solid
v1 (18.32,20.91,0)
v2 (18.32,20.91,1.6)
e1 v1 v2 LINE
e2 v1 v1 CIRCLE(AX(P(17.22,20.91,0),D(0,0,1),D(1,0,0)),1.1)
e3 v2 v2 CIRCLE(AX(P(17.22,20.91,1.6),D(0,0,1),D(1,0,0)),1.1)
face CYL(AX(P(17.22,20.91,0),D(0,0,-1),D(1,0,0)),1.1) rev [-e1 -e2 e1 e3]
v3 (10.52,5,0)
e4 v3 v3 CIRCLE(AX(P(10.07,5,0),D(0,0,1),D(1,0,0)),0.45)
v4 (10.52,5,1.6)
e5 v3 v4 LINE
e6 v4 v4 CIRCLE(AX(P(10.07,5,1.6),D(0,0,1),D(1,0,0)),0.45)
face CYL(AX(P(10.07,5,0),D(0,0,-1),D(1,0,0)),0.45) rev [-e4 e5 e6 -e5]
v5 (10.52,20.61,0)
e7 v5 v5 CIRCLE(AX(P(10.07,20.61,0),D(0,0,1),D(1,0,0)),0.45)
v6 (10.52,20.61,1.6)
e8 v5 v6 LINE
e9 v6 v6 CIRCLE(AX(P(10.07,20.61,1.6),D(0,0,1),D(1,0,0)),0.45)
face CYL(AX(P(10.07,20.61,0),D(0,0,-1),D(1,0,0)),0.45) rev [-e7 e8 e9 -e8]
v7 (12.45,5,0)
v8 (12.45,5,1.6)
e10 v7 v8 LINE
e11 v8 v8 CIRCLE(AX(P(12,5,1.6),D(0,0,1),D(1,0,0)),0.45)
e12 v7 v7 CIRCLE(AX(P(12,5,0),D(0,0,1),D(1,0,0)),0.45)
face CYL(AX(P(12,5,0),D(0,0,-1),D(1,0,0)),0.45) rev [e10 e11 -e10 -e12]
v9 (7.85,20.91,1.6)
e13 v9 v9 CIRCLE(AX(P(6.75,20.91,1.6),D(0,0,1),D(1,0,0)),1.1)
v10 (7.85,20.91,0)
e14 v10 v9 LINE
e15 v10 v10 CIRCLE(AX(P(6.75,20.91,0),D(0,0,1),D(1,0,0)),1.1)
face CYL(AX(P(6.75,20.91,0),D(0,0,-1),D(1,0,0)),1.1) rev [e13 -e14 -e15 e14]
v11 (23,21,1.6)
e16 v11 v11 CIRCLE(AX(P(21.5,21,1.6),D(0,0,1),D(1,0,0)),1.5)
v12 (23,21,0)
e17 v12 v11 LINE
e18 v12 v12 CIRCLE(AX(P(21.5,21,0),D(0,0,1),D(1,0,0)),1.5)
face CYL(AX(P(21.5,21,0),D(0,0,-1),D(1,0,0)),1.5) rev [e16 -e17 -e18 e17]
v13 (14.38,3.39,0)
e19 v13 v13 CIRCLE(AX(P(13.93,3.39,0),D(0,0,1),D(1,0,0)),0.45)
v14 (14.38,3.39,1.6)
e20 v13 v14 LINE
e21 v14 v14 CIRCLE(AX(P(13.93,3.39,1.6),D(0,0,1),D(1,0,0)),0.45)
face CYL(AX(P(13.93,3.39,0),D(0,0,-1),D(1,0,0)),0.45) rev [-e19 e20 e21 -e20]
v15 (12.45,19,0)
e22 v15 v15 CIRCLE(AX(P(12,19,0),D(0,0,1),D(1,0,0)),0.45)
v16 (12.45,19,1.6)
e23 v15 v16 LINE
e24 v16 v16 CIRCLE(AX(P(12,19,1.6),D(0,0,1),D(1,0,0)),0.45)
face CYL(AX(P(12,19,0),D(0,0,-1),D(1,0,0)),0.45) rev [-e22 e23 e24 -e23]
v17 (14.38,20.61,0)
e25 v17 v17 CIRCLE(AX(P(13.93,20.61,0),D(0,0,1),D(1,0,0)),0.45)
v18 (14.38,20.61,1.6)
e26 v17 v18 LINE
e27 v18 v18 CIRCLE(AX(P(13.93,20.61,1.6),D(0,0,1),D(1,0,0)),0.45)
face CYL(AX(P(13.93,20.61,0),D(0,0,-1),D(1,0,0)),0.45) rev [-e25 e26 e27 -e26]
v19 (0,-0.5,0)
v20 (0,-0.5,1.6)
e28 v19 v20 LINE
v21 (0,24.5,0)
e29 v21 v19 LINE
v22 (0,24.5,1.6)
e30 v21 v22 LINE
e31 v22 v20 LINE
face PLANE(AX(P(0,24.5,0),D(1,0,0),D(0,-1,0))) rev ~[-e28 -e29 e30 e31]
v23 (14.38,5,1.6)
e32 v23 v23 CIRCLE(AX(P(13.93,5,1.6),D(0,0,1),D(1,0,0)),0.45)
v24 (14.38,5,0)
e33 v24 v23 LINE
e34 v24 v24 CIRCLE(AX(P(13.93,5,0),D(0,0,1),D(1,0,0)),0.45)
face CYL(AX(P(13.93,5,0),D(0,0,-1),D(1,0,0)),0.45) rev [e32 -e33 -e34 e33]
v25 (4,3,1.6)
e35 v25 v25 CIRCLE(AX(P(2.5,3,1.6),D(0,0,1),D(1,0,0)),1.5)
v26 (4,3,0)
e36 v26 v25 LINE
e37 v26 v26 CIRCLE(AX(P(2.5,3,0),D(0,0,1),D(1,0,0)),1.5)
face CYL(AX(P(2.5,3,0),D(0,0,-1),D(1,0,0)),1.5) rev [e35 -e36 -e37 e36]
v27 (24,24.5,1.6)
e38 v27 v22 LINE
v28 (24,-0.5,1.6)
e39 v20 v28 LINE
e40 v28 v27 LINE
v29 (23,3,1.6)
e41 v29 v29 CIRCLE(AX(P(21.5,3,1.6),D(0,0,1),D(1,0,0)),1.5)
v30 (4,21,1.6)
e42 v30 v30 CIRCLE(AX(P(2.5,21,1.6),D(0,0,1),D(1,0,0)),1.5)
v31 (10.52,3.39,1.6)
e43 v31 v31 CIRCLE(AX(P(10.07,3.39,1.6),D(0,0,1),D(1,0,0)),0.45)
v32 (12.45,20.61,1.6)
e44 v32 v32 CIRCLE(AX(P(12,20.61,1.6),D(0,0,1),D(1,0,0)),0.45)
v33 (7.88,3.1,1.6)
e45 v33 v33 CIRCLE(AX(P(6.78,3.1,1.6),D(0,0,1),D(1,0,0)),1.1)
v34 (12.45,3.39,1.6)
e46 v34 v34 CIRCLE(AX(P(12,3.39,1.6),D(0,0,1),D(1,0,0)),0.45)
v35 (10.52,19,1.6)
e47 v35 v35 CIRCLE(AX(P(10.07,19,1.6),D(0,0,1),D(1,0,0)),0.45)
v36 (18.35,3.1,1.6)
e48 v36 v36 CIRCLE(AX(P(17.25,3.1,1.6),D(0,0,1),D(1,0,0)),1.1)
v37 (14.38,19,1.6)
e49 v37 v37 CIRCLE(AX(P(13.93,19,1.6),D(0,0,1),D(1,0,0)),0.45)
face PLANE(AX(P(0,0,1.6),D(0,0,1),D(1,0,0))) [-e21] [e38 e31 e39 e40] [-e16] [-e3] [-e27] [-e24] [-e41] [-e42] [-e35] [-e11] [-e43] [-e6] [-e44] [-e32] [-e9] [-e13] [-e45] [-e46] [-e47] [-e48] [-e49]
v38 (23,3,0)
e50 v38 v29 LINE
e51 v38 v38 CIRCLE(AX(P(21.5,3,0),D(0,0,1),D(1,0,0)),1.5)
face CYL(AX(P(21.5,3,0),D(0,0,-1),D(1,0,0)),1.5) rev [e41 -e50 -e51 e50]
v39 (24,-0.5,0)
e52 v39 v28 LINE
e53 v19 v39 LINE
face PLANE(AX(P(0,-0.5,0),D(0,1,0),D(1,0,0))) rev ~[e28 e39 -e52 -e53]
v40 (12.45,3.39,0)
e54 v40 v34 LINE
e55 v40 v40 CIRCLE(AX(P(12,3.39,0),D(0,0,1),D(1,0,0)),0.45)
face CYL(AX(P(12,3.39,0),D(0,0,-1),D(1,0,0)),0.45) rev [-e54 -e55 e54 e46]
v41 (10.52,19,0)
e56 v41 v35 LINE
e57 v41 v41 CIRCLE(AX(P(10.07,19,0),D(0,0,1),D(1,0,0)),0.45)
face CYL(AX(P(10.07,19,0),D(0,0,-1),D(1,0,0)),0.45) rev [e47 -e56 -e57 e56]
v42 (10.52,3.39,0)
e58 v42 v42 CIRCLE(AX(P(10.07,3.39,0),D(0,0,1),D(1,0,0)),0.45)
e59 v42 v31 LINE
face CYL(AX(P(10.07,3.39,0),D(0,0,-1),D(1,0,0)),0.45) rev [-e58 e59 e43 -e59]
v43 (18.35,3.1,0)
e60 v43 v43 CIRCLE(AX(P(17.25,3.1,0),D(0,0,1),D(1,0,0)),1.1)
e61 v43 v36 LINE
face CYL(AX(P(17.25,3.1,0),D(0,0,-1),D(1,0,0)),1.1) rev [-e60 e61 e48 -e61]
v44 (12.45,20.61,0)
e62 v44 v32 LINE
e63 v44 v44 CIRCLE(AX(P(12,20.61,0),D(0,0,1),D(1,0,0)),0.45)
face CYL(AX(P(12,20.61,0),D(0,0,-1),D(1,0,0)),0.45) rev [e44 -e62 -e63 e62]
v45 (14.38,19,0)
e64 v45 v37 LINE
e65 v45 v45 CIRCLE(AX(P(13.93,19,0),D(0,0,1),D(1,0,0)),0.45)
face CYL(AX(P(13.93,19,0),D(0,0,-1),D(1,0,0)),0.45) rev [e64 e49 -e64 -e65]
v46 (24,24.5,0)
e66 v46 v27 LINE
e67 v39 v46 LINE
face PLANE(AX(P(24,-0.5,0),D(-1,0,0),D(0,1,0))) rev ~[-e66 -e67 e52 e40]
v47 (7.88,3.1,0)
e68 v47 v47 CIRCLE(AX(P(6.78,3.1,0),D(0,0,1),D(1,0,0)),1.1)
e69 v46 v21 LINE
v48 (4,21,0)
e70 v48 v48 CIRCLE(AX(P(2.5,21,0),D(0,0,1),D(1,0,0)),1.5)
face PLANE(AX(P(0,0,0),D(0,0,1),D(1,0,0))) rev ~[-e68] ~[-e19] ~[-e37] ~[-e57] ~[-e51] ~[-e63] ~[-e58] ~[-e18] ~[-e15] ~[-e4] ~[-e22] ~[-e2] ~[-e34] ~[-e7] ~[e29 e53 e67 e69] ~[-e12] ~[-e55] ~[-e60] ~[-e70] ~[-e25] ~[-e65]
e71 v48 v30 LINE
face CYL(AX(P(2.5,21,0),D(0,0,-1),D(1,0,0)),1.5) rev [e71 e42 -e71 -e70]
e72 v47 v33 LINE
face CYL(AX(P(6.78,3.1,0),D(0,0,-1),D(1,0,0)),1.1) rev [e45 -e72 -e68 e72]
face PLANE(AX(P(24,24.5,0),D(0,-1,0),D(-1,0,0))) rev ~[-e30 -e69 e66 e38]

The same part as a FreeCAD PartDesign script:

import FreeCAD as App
import Part
import Sketcher

V = App.Vector


def add_polygon(sketch, points):
    """Adds a closed chain of lines whose ends are joined by coincident constraints."""
    first, n = sketch.GeometryCount, len(points)
    for a, b in zip(points, points[1:] + points[:1]):
        sketch.addGeometry(Part.LineSegment(App.Vector(*a, 0), App.Vector(*b, 0)), False)
    for i in range(n):
        sketch.addConstraint(Sketcher.Constraint("Coincident", first + i, 2, first + (i + 1) % n, 1))

doc = App.newDocument("Part")
body = doc.addObject("PartDesign::Body", "Body")

sketch1 = body.newObject("Sketcher::SketchObject", "Sketch")
sketch1.AttachmentSupport = (doc.getObject("XY_Plane"), [""])
sketch1.MapMode = "FlatFace"
add_polygon(sketch1, [(0, 24.5), (0, -0.5), (24, -0.5), (24, 24.5)])
sketch1.addGeometry(Part.Circle(V(2.5, 3, 0), V(0, 0, 1), 1.5), False)
sketch1.addGeometry(Part.Circle(V(6.78, 3.1, 0), V(0, 0, 1), 1.1), False)
sketch1.addGeometry(Part.Circle(V(10.07, 3.39, 0), V(0, 0, 1), 0.45), False)
sketch1.addGeometry(Part.Circle(V(10.07, 5, 0), V(0, 0, 1), 0.45), False)
sketch1.addGeometry(Part.Circle(V(12, 3.39, 0), V(0, 0, 1), 0.45), False)
sketch1.addGeometry(Part.Circle(V(13.93, 3.39, 0), V(0, 0, 1), 0.45), False)
sketch1.addGeometry(Part.Circle(V(12, 5, 0), V(0, 0, 1), 0.45), False)
sketch1.addGeometry(Part.Circle(V(13.93, 5, 0), V(0, 0, 1), 0.45), False)
sketch1.addGeometry(Part.Circle(V(17.25, 3.1, 0), V(0, 0, 1), 1.1), False)
sketch1.addGeometry(Part.Circle(V(21.5, 3, 0), V(0, 0, 1), 1.5), False)
sketch1.addGeometry(Part.Circle(V(2.5, 21, 0), V(0, 0, 1), 1.5), False)
sketch1.addGeometry(Part.Circle(V(6.75, 20.91, 0), V(0, 0, 1), 1.1), False)
sketch1.addGeometry(Part.Circle(V(10.07, 19, 0), V(0, 0, 1), 0.45), False)
sketch1.addGeometry(Part.Circle(V(10.07, 20.61, 0), V(0, 0, 1), 0.45), False)
sketch1.addGeometry(Part.Circle(V(12, 19, 0), V(0, 0, 1), 0.45), False)
sketch1.addGeometry(Part.Circle(V(13.93, 19, 0), V(0, 0, 1), 0.45), False)
sketch1.addGeometry(Part.Circle(V(12, 20.61, 0), V(0, 0, 1), 0.45), False)
sketch1.addGeometry(Part.Circle(V(13.93, 20.61, 0), V(0, 0, 1), 0.45), False)
sketch1.addGeometry(Part.Circle(V(17.22, 20.91, 0), V(0, 0, 1), 1.1), False)
sketch1.addGeometry(Part.Circle(V(21.5, 21, 0), V(0, 0, 1), 1.5), False)
sketch1.addConstraint([
    Sketcher.Constraint("Vertical", 0),
    Sketcher.Constraint("Horizontal", 1),
    Sketcher.Constraint("Vertical", 2),
    Sketcher.Constraint("Horizontal", 3),
    Sketcher.Constraint("Equal", 6, 7),
    Sketcher.Constraint("Equal", 7, 8),
    Sketcher.Constraint("Equal", 8, 9),
    Sketcher.Constraint("Equal", 9, 10),
    Sketcher.Constraint("Equal", 10, 11),
    Sketcher.Constraint("Equal", 5, 12),
    Sketcher.Constraint("Equal", 4, 13),
    Sketcher.Constraint("Equal", 13, 14),
    Sketcher.Constraint("Equal", 12, 15),
    Sketcher.Constraint("Equal", 11, 16),
    Sketcher.Constraint("Equal", 16, 17),
    Sketcher.Constraint("Equal", 17, 18),
    Sketcher.Constraint("Equal", 18, 19),
    Sketcher.Constraint("Equal", 19, 20),
    Sketcher.Constraint("Equal", 20, 21),
    Sketcher.Constraint("Equal", 15, 22),
    Sketcher.Constraint("Equal", 14, 23),
    Sketcher.Constraint("PointOnObject", 0, 2, -2),
    Sketcher.Constraint("Horizontal", 6, 3, 8, 3),
    Sketcher.Constraint("Horizontal", 8, 3, 9, 3),
    Sketcher.Constraint("Horizontal", 7, 3, 10, 3),
    Sketcher.Constraint("Horizontal", 10, 3, 11, 3),
    Sketcher.Constraint("Horizontal", 5, 3, 12, 3),
    Sketcher.Constraint("Horizontal", 4, 3, 13, 3),
    Sketcher.Constraint("Horizontal", 16, 3, 18, 3),
    Sketcher.Constraint("Horizontal", 18, 3, 19, 3),
    Sketcher.Constraint("Horizontal", 17, 3, 20, 3),
    Sketcher.Constraint("Horizontal", 20, 3, 21, 3),
    Sketcher.Constraint("Horizontal", 15, 3, 22, 3),
    Sketcher.Constraint("Horizontal", 14, 3, 23, 3),
    Sketcher.Constraint("Vertical", 6, 3, 7, 3),
    Sketcher.Constraint("Vertical", 8, 3, 10, 3),
    Sketcher.Constraint("Vertical", 9, 3, 11, 3),
    Sketcher.Constraint("Vertical", 4, 3, 14, 3),
    Sketcher.Constraint("Vertical", 7, 3, 16, 3),
    Sketcher.Constraint("Vertical", 16, 3, 17, 3),
    Sketcher.Constraint("Vertical", 10, 3, 18, 3),
    Sketcher.Constraint("Vertical", 11, 3, 19, 3),
    Sketcher.Constraint("Vertical", 18, 3, 20, 3),
    Sketcher.Constraint("Vertical", 19, 3, 21, 3),
    Sketcher.Constraint("Vertical", 13, 3, 23, 3),
    Sketcher.Constraint("Diameter", 4, 3.0),
    Sketcher.Constraint("Diameter", 5, 2.2),
    Sketcher.Constraint("Diameter", 6, 0.9),
    Sketcher.Constraint("DistanceX", 1, 1, 1, 2, 24.0),
    Sketcher.Constraint("DistanceY", 0, 2, 0, 1, 25.0),
    Sketcher.Constraint("DistanceY", -1, 1, 4, 3, 3.0),
    Sketcher.Constraint("DistanceY", -1, 1, 7, 3, 5.0),
    Sketcher.Constraint("DistanceX", -1, 1, 8, 3, 12.0),
    Sketcher.Constraint("DistanceY", -1, 1, 14, 3, 21.0),
    Sketcher.Constraint("DistanceY", -1, 1, 16, 3, 19.0),
    Sketcher.Constraint("DistanceX", -1, 1, 4, 3, 2.5),
    Sketcher.Constraint("DistanceY", -1, 1, 5, 3, 3.1),
    Sketcher.Constraint("DistanceX", -1, 1, 13, 3, 21.5),
    Sketcher.Constraint("DistanceY", 0, 2, -1, 1, 0.5),
    Sketcher.Constraint("DistanceY", 17, 3, 15, 3, 0.3),
    Sketcher.Constraint("DistanceX", -1, 1, 5, 3, 6.78),
    Sketcher.Constraint("DistanceX", -1, 1, 6, 3, 10.07),
    Sketcher.Constraint("DistanceY", -1, 1, 6, 3, 3.39),
    Sketcher.Constraint("DistanceX", -1, 1, 9, 3, 13.93),
    Sketcher.Constraint("DistanceX", -1, 1, 12, 3, 17.25),
    Sketcher.Constraint("DistanceX", -1, 1, 15, 3, 6.75),
    Sketcher.Constraint("DistanceY", -1, 1, 15, 3, 20.91),
    Sketcher.Constraint("DistanceX", -1, 1, 22, 3, 17.22),
])
pad1 = body.newObject("PartDesign::Pad", "Pad")
pad1.Profile = sketch1
pad1.Length = 1.6

doc.recompute()
